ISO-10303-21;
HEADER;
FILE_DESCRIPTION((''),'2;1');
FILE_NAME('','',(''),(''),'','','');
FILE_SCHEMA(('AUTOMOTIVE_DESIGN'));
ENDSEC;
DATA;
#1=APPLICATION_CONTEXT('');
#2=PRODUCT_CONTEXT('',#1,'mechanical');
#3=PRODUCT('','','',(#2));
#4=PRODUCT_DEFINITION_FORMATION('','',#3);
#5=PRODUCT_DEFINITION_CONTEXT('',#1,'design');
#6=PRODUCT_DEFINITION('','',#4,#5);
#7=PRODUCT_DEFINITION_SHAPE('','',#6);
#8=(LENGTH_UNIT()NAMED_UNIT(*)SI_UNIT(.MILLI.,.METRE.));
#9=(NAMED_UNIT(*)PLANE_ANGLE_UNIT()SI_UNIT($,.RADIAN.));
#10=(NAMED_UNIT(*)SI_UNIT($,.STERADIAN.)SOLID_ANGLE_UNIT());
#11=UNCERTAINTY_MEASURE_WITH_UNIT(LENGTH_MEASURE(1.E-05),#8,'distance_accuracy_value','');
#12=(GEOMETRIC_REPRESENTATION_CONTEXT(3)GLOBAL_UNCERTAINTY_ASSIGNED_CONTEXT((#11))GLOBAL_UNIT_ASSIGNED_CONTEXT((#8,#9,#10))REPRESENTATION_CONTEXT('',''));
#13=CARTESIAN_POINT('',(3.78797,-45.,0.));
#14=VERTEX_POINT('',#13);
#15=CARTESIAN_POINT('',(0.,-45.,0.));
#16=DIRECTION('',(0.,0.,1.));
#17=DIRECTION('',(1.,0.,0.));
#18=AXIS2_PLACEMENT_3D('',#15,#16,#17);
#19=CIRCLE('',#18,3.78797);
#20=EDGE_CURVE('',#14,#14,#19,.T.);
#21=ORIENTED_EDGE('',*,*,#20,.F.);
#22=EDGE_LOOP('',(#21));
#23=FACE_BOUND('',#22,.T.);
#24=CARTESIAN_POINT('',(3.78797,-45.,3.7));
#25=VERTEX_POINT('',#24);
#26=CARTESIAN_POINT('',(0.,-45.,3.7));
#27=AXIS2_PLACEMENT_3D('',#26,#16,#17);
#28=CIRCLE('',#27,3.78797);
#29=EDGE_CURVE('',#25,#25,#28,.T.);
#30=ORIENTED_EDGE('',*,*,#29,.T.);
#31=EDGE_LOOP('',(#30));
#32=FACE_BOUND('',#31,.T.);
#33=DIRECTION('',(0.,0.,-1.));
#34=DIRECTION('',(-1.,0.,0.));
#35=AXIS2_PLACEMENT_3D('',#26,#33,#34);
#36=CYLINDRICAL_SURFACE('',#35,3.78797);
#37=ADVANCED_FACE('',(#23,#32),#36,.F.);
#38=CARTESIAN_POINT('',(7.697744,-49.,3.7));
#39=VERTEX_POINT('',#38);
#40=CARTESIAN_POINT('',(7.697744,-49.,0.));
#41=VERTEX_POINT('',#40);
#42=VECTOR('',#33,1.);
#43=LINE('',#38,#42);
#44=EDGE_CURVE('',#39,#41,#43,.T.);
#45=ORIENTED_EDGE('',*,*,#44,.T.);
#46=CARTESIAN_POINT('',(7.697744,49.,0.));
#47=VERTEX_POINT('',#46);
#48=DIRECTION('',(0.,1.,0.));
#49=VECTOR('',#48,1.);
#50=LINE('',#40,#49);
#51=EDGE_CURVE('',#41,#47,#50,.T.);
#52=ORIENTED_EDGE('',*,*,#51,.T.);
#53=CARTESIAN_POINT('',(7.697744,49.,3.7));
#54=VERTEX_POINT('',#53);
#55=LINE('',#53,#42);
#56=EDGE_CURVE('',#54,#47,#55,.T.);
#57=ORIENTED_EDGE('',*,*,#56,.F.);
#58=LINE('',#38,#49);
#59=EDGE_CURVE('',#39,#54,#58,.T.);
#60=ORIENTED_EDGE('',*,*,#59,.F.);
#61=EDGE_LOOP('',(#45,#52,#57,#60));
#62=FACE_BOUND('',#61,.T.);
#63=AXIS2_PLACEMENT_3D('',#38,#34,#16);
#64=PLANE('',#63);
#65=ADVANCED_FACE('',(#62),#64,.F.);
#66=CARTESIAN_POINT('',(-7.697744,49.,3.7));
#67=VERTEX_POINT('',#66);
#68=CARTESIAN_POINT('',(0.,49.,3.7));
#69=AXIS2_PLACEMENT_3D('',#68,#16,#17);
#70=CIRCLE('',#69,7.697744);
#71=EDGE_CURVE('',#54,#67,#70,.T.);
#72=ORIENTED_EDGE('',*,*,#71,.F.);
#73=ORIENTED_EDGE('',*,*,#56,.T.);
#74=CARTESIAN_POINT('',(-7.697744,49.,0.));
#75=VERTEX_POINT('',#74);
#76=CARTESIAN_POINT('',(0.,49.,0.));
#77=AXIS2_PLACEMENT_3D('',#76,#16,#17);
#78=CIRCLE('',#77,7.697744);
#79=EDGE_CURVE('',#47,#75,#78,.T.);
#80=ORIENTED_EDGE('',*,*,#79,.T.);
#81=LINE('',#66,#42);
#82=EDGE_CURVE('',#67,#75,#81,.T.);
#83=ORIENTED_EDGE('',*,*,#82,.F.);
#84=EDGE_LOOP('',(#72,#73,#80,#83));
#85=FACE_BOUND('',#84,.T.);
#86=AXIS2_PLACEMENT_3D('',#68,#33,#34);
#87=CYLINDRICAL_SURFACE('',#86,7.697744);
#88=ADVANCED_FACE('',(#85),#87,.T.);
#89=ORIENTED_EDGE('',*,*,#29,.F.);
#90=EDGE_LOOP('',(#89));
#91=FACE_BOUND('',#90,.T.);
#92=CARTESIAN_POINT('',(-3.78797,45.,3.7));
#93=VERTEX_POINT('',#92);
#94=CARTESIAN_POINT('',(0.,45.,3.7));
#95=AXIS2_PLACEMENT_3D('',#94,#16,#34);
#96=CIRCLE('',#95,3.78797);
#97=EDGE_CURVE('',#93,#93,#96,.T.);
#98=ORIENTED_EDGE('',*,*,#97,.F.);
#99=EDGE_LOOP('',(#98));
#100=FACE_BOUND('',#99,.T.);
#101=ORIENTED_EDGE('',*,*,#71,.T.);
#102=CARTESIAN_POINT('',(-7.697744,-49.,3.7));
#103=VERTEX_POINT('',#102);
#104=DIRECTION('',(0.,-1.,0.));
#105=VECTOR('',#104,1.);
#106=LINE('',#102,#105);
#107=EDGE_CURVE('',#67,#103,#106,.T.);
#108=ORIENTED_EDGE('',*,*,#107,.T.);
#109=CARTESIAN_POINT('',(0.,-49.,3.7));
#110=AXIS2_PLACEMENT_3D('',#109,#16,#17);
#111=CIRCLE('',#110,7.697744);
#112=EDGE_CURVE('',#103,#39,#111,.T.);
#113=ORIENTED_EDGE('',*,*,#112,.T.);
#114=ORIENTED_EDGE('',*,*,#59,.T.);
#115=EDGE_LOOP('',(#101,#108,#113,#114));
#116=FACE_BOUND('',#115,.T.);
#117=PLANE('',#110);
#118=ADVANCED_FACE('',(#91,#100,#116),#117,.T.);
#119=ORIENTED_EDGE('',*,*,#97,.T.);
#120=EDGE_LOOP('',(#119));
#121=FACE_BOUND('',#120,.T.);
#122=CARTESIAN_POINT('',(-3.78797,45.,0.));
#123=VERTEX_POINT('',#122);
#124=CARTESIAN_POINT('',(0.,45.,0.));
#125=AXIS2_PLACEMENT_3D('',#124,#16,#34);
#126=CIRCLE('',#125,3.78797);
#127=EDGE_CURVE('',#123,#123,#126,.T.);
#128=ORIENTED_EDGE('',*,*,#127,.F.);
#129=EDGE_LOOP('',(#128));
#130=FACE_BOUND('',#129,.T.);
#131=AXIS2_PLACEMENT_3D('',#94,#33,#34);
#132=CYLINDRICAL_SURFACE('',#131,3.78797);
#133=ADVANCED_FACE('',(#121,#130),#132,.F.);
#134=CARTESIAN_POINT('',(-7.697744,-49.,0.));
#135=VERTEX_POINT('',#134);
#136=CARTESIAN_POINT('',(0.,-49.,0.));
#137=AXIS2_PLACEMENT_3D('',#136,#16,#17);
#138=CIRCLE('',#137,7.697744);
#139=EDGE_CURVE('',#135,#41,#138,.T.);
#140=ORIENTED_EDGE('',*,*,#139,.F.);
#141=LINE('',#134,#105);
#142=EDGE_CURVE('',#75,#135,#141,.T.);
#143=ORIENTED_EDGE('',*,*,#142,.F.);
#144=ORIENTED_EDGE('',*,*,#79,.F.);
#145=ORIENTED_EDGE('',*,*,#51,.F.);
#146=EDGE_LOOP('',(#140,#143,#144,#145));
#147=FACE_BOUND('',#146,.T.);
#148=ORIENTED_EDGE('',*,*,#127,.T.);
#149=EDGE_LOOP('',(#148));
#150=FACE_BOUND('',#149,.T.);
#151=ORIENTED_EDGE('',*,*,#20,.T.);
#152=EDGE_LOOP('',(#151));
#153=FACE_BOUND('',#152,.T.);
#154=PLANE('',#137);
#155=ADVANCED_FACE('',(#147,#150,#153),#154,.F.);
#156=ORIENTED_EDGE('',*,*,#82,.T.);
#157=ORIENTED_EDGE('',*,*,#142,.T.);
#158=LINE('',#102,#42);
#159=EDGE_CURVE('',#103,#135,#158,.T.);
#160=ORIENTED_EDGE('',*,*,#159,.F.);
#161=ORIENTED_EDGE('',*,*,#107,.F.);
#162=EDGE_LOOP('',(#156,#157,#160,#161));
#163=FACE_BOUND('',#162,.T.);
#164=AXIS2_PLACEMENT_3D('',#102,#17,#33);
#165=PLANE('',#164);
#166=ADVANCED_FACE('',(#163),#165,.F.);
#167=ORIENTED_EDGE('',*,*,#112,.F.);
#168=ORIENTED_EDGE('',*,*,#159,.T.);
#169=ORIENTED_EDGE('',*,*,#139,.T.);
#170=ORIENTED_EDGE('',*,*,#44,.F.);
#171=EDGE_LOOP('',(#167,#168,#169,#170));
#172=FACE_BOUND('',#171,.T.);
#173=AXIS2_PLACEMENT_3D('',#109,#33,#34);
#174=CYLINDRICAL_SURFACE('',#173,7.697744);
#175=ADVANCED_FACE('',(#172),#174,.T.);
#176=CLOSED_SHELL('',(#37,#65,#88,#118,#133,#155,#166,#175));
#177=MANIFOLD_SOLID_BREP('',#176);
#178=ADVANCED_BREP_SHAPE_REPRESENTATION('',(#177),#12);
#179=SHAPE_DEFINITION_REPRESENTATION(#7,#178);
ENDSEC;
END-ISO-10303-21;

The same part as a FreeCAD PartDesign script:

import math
import FreeCAD as App
import Part
import Sketcher

V = App.Vector

doc = App.newDocument("Part")
body = doc.addObject("PartDesign::Body", "Body")

sketch1 = body.newObject("Sketcher::SketchObject", "Sketch")
sketch1.AttachmentSupport = (doc.getObject("XY_Plane"), [""])
sketch1.MapMode = "FlatFace"
sketch1.addGeometry(Part.LineSegment(V(-7.7, 49, 0), V(-7.7, -49, 0)), False)
sketch1.addGeometry(Part.ArcOfCircle(Part.Circle(V(0, -49, 0), V(0, 0, 1), 7.7), math.radians(180), math.radians(360)), False)
sketch1.addGeometry(Part.LineSegment(V(7.7, -49, 0), V(7.7, 49, 0)), False)
sketch1.addGeometry(Part.ArcOfCircle(Part.Circle(V(0, 49, 0), V(0, 0, 1), 7.7), math.radians(0), math.radians(180)), False)
sketch1.addGeometry(Part.Circle(V(0, -45, 0), V(0, 0, 1), 3.8), False)
sketch1.addGeometry(Part.Circle(V(0, 45, 0), V(0, 0, 1), 3.8), False)
sketch1.addConstraint(Sketcher.Constraint("Tangent", 0, 2, 1, 1))
sketch1.addConstraint(Sketcher.Constraint("Tangent", 1, 2, 2, 1))
sketch1.addConstraint(Sketcher.Constraint("Tangent", 2, 2, 3, 1))
sketch1.addConstraint(Sketcher.Constraint("Tangent", 3, 2, 0, 1))
sketch1.addConstraint(Sketcher.Constraint("Vertical", 0))
sketch1.addConstraint(Sketcher.Constraint("Vertical", 2))
sketch1.addConstraint(Sketcher.Constraint("Equal", 4, 5))
sketch1.addConstraint(Sketcher.Constraint("Symmetric", 1, 3, 3, 3, -1, 1))
sketch1.addConstraint(Sketcher.Constraint("Symmetric", 4, 3, 5, 3, -1, 1))
sketch1.addConstraint(Sketcher.Constraint("PointOnObject", 4, 3, -2))
sketch1.addConstraint(Sketcher.Constraint("DistanceY", 0, 2, 0, 1, 98.0))
sketch1.addConstraint(Sketcher.Constraint("DistanceY", 4, 3, -1, 1, 45.0))
sketch1.addConstraint(Sketcher.Constraint("Diameter", 4, 7.57594))
sketch1.addConstraint(Sketcher.Constraint("Radius", 1, 7.697744))
pad1 = body.newObject("PartDesign::Pad", "Pad")
pad1.Profile = sketch1
pad1.Length = 3.7

doc.recompute()
